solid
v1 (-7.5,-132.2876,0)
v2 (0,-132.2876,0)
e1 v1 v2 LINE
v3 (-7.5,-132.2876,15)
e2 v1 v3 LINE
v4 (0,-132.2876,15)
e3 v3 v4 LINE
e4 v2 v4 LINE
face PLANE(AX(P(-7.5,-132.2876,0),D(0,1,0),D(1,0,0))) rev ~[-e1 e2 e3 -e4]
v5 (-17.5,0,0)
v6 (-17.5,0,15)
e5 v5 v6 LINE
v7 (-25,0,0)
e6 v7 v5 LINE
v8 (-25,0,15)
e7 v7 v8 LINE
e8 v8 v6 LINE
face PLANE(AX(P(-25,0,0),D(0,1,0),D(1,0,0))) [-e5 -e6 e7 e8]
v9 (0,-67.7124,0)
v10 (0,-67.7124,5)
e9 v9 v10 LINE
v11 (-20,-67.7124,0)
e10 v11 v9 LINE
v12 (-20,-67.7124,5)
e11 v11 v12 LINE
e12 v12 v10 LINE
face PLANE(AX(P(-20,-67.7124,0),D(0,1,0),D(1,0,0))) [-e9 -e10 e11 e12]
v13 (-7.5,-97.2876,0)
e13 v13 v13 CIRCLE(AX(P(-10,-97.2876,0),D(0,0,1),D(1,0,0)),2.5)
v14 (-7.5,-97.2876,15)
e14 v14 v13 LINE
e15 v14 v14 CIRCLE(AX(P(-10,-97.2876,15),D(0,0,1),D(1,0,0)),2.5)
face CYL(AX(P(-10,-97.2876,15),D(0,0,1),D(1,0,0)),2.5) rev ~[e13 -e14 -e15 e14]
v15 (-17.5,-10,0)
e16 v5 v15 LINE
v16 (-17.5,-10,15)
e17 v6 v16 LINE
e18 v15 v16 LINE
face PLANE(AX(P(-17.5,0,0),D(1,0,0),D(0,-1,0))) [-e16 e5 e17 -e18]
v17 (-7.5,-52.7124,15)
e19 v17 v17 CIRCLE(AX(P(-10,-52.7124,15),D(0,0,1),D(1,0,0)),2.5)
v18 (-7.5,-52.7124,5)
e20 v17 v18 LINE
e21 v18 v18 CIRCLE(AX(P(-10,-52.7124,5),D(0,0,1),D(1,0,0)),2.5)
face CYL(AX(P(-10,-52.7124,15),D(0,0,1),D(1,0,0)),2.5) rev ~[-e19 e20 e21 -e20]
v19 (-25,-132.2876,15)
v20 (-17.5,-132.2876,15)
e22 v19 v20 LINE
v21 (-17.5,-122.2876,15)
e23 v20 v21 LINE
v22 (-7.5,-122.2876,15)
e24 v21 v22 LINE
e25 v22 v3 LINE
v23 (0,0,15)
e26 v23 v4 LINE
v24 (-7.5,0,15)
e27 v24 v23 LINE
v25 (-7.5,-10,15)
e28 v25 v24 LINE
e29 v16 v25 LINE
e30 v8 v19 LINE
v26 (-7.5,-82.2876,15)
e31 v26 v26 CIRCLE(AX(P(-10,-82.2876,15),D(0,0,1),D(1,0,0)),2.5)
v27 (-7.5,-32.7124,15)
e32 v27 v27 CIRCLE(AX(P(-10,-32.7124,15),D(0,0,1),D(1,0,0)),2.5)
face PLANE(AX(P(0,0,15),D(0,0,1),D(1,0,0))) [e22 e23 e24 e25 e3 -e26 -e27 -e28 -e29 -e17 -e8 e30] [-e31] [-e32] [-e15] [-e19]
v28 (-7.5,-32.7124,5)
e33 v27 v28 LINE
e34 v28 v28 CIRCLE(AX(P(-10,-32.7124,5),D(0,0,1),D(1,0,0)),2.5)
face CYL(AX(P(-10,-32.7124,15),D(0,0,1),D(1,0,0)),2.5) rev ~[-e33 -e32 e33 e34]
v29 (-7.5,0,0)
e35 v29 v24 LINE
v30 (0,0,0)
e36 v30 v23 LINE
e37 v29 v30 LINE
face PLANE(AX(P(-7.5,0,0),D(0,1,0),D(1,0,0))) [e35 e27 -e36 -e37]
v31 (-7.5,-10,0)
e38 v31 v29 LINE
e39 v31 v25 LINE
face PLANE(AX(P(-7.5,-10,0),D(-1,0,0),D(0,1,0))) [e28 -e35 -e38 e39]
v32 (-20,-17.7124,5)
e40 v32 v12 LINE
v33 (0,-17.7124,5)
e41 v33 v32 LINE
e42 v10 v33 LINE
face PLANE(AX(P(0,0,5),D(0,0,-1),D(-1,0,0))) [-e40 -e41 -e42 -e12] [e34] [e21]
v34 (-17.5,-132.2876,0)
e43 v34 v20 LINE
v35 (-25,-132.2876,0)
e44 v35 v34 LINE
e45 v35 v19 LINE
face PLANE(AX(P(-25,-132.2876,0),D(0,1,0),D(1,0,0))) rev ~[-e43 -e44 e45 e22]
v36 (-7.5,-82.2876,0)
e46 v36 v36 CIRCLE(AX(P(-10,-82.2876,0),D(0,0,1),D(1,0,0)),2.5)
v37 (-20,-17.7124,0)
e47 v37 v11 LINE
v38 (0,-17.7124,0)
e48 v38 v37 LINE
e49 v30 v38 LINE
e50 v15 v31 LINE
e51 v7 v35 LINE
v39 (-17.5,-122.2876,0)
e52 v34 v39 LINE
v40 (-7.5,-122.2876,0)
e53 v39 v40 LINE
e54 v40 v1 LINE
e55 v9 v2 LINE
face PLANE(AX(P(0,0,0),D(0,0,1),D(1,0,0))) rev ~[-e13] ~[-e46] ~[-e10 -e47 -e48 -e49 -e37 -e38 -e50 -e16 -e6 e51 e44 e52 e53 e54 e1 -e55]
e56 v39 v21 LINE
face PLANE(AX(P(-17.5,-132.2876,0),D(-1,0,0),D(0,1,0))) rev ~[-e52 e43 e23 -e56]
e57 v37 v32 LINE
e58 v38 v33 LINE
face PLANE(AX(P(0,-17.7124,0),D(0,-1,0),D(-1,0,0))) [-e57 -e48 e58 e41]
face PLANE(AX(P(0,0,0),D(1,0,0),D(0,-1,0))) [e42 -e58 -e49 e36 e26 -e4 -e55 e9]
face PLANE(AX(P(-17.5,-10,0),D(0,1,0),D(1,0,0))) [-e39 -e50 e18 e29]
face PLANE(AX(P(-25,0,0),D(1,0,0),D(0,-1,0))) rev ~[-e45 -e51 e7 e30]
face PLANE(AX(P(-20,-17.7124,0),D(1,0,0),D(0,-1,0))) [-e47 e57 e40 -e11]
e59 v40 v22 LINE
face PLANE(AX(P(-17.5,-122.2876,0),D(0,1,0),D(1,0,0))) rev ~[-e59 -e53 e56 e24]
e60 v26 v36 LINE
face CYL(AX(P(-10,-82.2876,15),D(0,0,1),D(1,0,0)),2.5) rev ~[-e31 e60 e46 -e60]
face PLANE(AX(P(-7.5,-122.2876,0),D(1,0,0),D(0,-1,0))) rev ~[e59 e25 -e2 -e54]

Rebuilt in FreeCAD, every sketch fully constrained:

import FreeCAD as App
import Part
import Sketcher

V = App.Vector


def add_polygon(sketch, points):
    """Adds a closed chain of lines whose ends are joined by coincident constraints."""
    first, n = sketch.GeometryCount, len(points)
    for a, b in zip(points, points[1:] + points[:1]):
        sketch.addGeometry(Part.LineSegment(App.Vector(*a, 0), App.Vector(*b, 0)), False)
    for i in range(n):
        sketch.addConstraint(Sketcher.Constraint("Coincident", first + i, 2, first + (i + 1) % n, 1))

doc = App.newDocument("Part")
body = doc.addObject("PartDesign::Body", "Body")

sketch1 = body.newObject("Sketcher::SketchObject", "Sketch")
sketch1.AttachmentSupport = (doc.getObject("XY_Plane"), [""])
sketch1.MapMode = "FlatFace"
add_polygon(sketch1, [(-18, 0), (-25, 0), (-25, -132), (-18, -132), (-18, -122), (-8, -122), (-8, -132), (0, -132), (0, 0), (-8, 0), (-8, -10), (-18, -10)])
sketch1.addConstraint(Sketcher.Constraint("Horizontal", 0))
sketch1.addConstraint(Sketcher.Constraint("Vertical", 1))
sketch1.addConstraint(Sketcher.Constraint("Horizontal", 2))
sketch1.addConstraint(Sketcher.Constraint("Vertical", 3))
sketch1.addConstraint(Sketcher.Constraint("Horizontal", 4))
sketch1.addConstraint(Sketcher.Constraint("Vertical", 5))
sketch1.addConstraint(Sketcher.Constraint("Horizontal", 6))
sketch1.addConstraint(Sketcher.Constraint("Vertical", 7))
sketch1.addConstraint(Sketcher.Constraint("Horizontal", 8))
sketch1.addConstraint(Sketcher.Constraint("Vertical", 9))
sketch1.addConstraint(Sketcher.Constraint("Horizontal", 10))
sketch1.addConstraint(Sketcher.Constraint("Vertical", 11))
sketch1.addConstraint(Sketcher.Constraint("Coincident", 7, 2, -1, 1))
sketch1.addConstraint(Sketcher.Constraint("PointOnObject", 0, 2, -1))
sketch1.addConstraint(Sketcher.Constraint("Horizontal", 2, 2, 5, 2))
sketch1.addConstraint(Sketcher.Constraint("Vertical", 5, 2, 8, 2))
sketch1.addConstraint(Sketcher.Constraint("Vertical", 3, 2, 10, 2))
sketch1.addConstraint(Sketcher.Constraint("Equal", 2, 6))
sketch1.addConstraint(Sketcher.Constraint("Equal", 10, 3))
sketch1.addConstraint(Sketcher.Constraint("Equal", 5, 9))
sketch1.addConstraint(Sketcher.Constraint("DistanceX", 4, 1, 4, 2, 10.0))
sketch1.addConstraint(Sketcher.Constraint("DistanceX", 0, 2, 0, 1, 7.5))
sketch1.addConstraint(Sketcher.Constraint("DistanceY", 1, 2, 1, 1, 132.2876))
pad1 = body.newObject("PartDesign::Pad", "Pad")
pad1.Profile = sketch1
pad1.Length = 15

sketch2 = body.newObject("Sketcher::SketchObject", "Sketch001")
sketch2.AttachmentSupport = (doc.getObject("XY_Plane"), [""])
sketch2.MapMode = "FlatFace"
sketch2.AttachmentOffset = App.Placement(V(0, 0, 15), App.Rotation())
sketch2.addGeometry(Part.Circle(V(-10, -32.7, 0), V(0, 0, 1), 2.5), False)
sketch2.addGeometry(Part.Circle(V(-10, -52.7, 0), V(0, 0, 1), 2.5), False)
sketch2.addConstraint(Sketcher.Constraint("Equal", 0, 1))
sketch2.addConstraint(Sketcher.Constraint("Vertical", 0, 3, 1, 3))
sketch2.addConstraint(Sketcher.Constraint("Diameter", 0, 5.0))
sketch2.addConstraint(Sketcher.Constraint("DistanceX", 0, 3, -1, 1, 10.0))
sketch2.addConstraint(Sketcher.Constraint("DistanceY", 1, 3, 0, 3, 20.0))
sketch2.addConstraint(Sketcher.Constraint("DistanceY", 0, 3, -1, 1, 32.7124))
pocket1 = body.newObject("PartDesign::Pocket", "Pocket")
pocket1.Profile = sketch2
pocket1.Type = "ThroughAll"

sketch3 = body.newObject("Sketcher::SketchObject", "Sketch002")
sketch3.AttachmentSupport = (doc.getObject("XY_Plane"), [""])
sketch3.MapMode = "FlatFace"
sketch3.AttachmentOffset = App.Placement(V(0, 0, 15), App.Rotation())
sketch3.addGeometry(Part.Circle(V(-10, -82.3, 0), V(0, 0, 1), 2.5), False)
sketch3.addGeometry(Part.Circle(V(-10, -97.3, 0), V(0, 0, 1), 2.5), False)
sketch3.addConstraint(Sketcher.Constraint("Equal", 0, 1))
sketch3.addConstraint(Sketcher.Constraint("Vertical", 0, 3, 1, 3))
sketch3.addConstraint(Sketcher.Constraint("Diameter", 0, 5.0))
sketch3.addConstraint(Sketcher.Constraint("DistanceX", 0, 3, -1, 1, 10.0))
sketch3.addConstraint(Sketcher.Constraint("DistanceY", 1, 3, 0, 3, 15.0))
sketch3.addConstraint(Sketcher.Constraint("DistanceY", 0, 3, -1, 1, 82.2876))
pocket2 = body.newObject("PartDesign::Pocket", "Pocket001")
pocket2.Profile = sketch3
pocket2.Type = "ThroughAll"

sketch4 = body.newObject("Sketcher::SketchObject", "Sketch003")
sketch4.AttachmentSupport = (doc.getObject("XY_Plane"), [""])
sketch4.MapMode = "FlatFace"
add_polygon(sketch4, [(-20, -18), (0, -18), (0, -68), (-20, -68)])
sketch4.addConstraint(Sketcher.Constraint("Horizontal", 0))
sketch4.addConstraint(Sketcher.Constraint("Vertical", 1))
sketch4.addConstraint(Sketcher.Constraint("Horizontal", 2))
sketch4.addConstraint(Sketcher.Constraint("Vertical", 3))
sketch4.addConstraint(Sketcher.Constraint("PointOnObject", 0, 2, -2))
sketch4.addConstraint(Sketcher.Constraint("DistanceX", 0, 1, 0, 2, 20.0))
sketch4.addConstraint(Sketcher.Constraint("DistanceY", 1, 2, 1, 1, 50.0))
sketch4.addConstraint(Sketcher.Constraint("DistanceY", 0, 2, -1, 1, 17.7124))
pocket3 = body.newObject("PartDesign::Pocket", "Pocket002")
pocket3.Profile = sketch4
pocket3.Length = 5
pocket3.Reversed = True

doc.recompute()
